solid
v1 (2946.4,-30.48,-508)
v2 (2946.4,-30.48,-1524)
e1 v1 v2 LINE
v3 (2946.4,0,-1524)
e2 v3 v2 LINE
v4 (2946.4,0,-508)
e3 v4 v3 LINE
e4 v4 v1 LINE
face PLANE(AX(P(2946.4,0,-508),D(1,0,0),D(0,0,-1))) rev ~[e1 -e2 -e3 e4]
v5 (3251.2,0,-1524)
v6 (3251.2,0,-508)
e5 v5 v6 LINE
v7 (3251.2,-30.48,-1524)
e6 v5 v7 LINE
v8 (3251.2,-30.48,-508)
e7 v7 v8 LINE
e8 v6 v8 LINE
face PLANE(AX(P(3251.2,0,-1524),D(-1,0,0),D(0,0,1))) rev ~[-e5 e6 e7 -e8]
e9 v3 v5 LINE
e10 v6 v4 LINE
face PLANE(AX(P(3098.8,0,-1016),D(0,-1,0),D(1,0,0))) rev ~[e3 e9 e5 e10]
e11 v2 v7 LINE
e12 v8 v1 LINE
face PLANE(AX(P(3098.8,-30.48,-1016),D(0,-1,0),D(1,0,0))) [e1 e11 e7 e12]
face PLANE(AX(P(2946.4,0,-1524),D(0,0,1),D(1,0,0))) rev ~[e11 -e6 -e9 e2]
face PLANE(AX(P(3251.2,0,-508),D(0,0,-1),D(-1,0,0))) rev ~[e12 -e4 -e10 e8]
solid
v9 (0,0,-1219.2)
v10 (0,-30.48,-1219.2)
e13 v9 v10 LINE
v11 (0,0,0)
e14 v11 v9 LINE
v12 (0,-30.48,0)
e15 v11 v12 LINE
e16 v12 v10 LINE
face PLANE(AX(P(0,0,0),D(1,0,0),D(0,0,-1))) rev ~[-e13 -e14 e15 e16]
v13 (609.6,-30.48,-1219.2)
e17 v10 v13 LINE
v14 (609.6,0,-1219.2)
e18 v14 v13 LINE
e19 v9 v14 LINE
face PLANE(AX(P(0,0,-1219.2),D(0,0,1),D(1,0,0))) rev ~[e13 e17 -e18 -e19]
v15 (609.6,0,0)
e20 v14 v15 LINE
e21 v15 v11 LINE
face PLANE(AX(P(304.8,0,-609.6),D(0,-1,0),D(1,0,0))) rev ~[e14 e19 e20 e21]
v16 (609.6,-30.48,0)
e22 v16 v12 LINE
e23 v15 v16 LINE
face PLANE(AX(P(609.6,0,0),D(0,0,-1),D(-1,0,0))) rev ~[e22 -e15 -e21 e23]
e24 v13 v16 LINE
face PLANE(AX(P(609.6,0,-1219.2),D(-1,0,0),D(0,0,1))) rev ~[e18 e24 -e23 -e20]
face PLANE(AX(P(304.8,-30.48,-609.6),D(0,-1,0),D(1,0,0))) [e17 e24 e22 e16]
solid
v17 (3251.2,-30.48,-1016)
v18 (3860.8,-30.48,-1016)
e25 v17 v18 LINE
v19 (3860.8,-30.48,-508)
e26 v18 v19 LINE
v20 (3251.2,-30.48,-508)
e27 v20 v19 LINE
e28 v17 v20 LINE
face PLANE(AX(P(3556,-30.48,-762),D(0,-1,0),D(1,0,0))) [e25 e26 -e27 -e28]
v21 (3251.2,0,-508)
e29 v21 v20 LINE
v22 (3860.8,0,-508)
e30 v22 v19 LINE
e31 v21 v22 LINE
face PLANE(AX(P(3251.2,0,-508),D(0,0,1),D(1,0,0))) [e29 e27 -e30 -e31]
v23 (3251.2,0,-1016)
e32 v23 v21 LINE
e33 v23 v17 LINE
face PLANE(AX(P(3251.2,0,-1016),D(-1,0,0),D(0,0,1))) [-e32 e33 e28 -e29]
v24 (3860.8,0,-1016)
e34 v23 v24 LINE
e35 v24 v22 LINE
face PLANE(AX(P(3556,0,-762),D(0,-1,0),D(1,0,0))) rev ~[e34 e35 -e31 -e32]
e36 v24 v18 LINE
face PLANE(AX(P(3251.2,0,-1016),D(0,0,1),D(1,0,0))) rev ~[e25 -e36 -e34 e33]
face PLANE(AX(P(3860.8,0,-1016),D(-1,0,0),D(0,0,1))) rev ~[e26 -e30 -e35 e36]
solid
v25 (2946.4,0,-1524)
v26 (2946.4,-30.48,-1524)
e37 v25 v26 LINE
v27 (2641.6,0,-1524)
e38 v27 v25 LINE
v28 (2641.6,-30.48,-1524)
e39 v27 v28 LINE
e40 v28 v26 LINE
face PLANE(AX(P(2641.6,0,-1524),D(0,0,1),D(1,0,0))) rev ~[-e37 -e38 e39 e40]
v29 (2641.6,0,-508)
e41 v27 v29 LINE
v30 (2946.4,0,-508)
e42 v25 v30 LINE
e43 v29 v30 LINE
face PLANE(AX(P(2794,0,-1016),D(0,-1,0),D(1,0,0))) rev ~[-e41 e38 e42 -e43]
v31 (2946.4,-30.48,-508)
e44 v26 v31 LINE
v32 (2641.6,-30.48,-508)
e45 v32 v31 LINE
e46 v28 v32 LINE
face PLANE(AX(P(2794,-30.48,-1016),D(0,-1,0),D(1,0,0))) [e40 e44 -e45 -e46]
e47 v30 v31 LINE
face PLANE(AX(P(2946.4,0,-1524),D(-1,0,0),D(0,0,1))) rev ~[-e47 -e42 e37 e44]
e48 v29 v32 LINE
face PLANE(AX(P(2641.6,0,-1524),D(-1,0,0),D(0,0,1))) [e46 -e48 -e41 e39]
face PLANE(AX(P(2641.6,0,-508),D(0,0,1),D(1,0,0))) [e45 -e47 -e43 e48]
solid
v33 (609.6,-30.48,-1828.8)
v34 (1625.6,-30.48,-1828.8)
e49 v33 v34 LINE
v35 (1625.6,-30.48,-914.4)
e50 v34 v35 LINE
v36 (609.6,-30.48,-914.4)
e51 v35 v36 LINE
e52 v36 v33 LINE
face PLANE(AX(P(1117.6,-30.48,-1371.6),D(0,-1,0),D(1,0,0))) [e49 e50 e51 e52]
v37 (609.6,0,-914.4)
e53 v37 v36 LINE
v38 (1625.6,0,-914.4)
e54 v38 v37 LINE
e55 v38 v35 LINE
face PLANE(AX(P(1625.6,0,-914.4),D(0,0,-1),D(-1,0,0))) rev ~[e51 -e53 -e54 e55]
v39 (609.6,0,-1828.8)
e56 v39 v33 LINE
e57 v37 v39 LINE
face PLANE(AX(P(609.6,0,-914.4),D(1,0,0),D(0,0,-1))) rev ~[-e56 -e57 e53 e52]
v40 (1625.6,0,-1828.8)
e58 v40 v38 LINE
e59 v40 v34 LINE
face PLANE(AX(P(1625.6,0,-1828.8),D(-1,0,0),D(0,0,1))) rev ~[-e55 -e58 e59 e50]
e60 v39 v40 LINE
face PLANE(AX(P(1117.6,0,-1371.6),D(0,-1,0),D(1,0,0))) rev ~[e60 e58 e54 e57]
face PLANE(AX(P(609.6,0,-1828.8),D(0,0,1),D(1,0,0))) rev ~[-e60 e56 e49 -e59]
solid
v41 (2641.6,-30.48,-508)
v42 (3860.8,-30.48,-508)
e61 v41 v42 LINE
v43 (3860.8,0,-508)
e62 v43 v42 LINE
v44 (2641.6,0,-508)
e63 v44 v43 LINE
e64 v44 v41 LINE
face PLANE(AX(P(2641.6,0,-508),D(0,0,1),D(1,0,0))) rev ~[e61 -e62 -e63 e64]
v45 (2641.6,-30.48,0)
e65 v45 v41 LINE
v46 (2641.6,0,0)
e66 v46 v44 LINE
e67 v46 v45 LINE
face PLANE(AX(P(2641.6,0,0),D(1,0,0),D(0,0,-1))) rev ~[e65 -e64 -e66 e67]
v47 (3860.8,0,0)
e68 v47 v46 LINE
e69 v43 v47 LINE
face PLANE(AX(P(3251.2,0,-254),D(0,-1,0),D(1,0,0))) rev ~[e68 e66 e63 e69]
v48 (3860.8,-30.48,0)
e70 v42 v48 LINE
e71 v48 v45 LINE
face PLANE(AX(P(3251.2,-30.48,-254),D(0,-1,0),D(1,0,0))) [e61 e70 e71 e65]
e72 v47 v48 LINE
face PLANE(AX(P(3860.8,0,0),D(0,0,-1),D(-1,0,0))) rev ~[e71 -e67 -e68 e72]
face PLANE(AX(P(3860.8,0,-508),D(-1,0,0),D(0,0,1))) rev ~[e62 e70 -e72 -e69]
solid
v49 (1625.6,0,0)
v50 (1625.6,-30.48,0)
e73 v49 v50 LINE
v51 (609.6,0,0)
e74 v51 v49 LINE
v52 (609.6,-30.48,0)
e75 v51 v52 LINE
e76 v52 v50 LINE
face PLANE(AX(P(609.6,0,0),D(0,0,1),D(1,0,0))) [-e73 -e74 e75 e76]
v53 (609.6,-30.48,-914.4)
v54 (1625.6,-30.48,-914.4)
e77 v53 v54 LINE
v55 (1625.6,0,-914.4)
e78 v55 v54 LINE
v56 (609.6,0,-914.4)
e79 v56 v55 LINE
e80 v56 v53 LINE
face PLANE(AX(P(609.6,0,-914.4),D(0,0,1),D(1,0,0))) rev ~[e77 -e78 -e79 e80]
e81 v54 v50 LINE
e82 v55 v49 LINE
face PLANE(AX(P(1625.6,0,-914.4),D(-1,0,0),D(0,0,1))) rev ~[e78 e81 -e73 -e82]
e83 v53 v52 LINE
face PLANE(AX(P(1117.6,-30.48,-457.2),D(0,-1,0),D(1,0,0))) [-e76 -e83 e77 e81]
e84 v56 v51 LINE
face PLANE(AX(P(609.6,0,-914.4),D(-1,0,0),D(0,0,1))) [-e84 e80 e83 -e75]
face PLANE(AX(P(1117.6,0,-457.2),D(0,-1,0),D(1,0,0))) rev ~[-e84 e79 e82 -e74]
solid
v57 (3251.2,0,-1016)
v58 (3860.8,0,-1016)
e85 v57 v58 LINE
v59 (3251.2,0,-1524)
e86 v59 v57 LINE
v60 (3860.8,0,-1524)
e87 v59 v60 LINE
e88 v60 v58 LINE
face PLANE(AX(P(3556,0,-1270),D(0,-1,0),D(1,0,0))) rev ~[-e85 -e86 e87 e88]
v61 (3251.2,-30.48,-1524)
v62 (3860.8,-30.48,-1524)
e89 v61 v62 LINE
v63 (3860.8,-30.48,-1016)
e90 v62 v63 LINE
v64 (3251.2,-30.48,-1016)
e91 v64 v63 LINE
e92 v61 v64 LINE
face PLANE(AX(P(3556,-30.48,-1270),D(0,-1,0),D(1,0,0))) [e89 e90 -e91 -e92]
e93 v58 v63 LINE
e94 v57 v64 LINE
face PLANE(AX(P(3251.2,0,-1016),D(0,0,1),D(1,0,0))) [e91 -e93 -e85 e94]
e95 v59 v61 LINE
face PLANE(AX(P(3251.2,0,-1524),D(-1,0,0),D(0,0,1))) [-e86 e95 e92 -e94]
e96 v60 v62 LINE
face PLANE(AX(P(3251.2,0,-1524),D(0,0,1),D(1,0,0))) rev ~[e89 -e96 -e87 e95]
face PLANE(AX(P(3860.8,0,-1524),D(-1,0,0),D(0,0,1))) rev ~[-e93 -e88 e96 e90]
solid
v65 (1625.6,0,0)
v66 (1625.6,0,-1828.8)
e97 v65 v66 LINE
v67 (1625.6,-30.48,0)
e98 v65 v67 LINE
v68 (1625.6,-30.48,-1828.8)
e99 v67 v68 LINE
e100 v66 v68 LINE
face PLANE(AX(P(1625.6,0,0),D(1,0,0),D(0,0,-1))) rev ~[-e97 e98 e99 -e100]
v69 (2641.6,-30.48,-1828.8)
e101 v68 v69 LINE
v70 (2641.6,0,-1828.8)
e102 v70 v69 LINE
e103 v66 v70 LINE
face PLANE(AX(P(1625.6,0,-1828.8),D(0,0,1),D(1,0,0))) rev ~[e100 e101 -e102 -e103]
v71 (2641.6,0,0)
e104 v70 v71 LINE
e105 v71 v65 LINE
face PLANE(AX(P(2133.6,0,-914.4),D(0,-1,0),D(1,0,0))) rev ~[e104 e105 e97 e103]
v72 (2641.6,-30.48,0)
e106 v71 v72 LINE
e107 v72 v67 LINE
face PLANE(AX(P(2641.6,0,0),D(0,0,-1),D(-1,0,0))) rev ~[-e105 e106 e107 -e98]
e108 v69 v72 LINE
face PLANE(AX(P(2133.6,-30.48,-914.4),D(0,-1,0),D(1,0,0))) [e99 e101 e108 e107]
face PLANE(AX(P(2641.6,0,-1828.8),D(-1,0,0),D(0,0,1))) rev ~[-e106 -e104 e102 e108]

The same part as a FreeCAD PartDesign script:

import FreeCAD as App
import Part
import Sketcher

V = App.Vector
Q = App.Units.Quantity


def add_polygon(sketch, points):
    """Adds a closed chain of lines whose ends are joined by coincident constraints."""
    first, n = sketch.GeometryCount, len(points)
    for a, b in zip(points, points[1:] + points[:1]):
        sketch.addGeometry(Part.LineSegment(App.Vector(*a, 0), App.Vector(*b, 0)), False)
    for i in range(n):
        sketch.addConstraint(Sketcher.Constraint("Coincident", first + i, 2, first + (i + 1) % n, 1))

doc = App.newDocument("Part")
params = doc.addObject("Spreadsheet::Sheet", "Params")
for row, (alias, value) in enumerate([
    ("sketch1_width", "24 in"),
    ("sketch1_width2", "40 in"),
    ("sketch1_width3", "12 in"),
    ("sketch1_height", "48 in"),
    ("sketch1_height2", "72 in"),
    ("pad1_length", "1.2 in"),
    ("sketch2_width", "40 in"),
    ("sketch2_width2", "48 in"),
    ("sketch2_width3", "24 in"),
    ("sketch2_height", "36 in"),
    ("sketch2_height2", "20 in"),
    ("pad2_length", "1.2 in"),
    ("sketch3_width", "40 in"),
    ("sketch3_width2", "12 in"),
    ("sketch3_width3", "24 in"),
    ("sketch3_height", "36 in"),
    ("sketch3_height2", "20 in"),
    ("pad3_length", "1.2 in"),
], start=1):
    params.set(f"A{row}", alias)
    params.set(f"B{row}", "=" + value)
    params.setAlias(f"B{row}", alias)

body = doc.addObject("PartDesign::Body", "Body")
body.AllowCompound = True

# Sketch on XZ plane
sketch1 = doc.addObject("Sketcher::SketchObject", "Sketch")
body.addObject(sketch1)
sketch1.AttachmentSupport = (doc.XZ_Plane, [""])
sketch1.MapMode = "FlatFace"
add_polygon(sketch1, [(610, 0), (0, 0), (0, -1219), (610, -1219)])  # lines 0-3
add_polygon(sketch1, [(2642, 0), (1626, 0), (1626, -1829), (2642, -1829)])  # lines 4-7
add_polygon(sketch1, [(3251, -508), (2946, -508), (2946, -1524), (3251, -1524)])  # lines 8-11
sketch1.addConstraint([
    Sketcher.Constraint("Horizontal", 0),
    Sketcher.Constraint("Vertical", 1),
    Sketcher.Constraint("Horizontal", 2),
    Sketcher.Constraint("Vertical", 3),
    Sketcher.Constraint("Horizontal", 4),
    Sketcher.Constraint("Vertical", 5),
    Sketcher.Constraint("Horizontal", 6),
    Sketcher.Constraint("Vertical", 7),
    Sketcher.Constraint("Horizontal", 8),
    Sketcher.Constraint("Vertical", 9),
    Sketcher.Constraint("Horizontal", 10),
    Sketcher.Constraint("Vertical", 11),
    Sketcher.Constraint("Coincident", 0, 2, -1, 1),
    Sketcher.Constraint("PointOnObject", 4, 2, -1),
    Sketcher.Constraint("Equal", 6, 9),
    Sketcher.Constraint("DistanceX", 0, 2, 0, 1, Q("24 in")),
    Sketcher.Constraint("DistanceX", 4, 2, 4, 1, Q("40 in")),
    Sketcher.Constraint("DistanceX", 8, 2, 8, 1, Q("12 in")),
    Sketcher.Constraint("DistanceY", 1, 2, 1, 1, Q("48 in")),
    Sketcher.Constraint("DistanceY", 5, 2, 5, 1, Q("72 in")),
    Sketcher.Constraint("DistanceX", -1, 1, 4, 2, Q("64 in")),
    Sketcher.Constraint("DistanceX", -1, 1, 8, 2, Q("116 in")),
    Sketcher.Constraint("DistanceY", 8, 2, -1, 1, Q("20 in")),
])
sketch1.setExpression("Constraints[27]", "Params.sketch1_width")
sketch1.setExpression("Constraints[28]", "Params.sketch1_width2")
sketch1.setExpression("Constraints[29]", "Params.sketch1_width3")
sketch1.setExpression("Constraints[30]", "Params.sketch1_height")
sketch1.setExpression("Constraints[31]", "Params.sketch1_height2")
pad1 = doc.addObject("PartDesign::Pad", "Pad")
body.addObject(pad1)
pad1.Profile = sketch1
pad1.setExpression("Length", "Params.pad1_length")
body2 = doc.addObject("PartDesign::Body", "Body001")
body2.AllowCompound = True

# Sketch on XZ plane
sketch2 = doc.addObject("Sketcher::SketchObject", "Sketch001")
body2.addObject(sketch2)
sketch2.AttachmentSupport = (doc.getObject("XZ_Plane001"), [""])
sketch2.MapMode = "FlatFace"
add_polygon(sketch2, [(610, 0), (610, -914), (1626, -914), (1626, 0)])  # lines 0-3
add_polygon(sketch2, [(3861, 0), (2642, 0), (2642, -508), (3861, -508)])  # lines 4-7
add_polygon(sketch2, [(3251, -1016), (3251, -1524), (3861, -1524), (3861, -1016)])  # lines 8-11
sketch2.addConstraint([
    Sketcher.Constraint("Vertical", 0),
    Sketcher.Constraint("Horizontal", 1),
    Sketcher.Constraint("Vertical", 2),
    Sketcher.Constraint("Horizontal", 3),
    Sketcher.Constraint("Horizontal", 4),
    Sketcher.Constraint("Vertical", 5),
    Sketcher.Constraint("Horizontal", 6),
    Sketcher.Constraint("Vertical", 7),
    Sketcher.Constraint("Vertical", 8),
    Sketcher.Constraint("Horizontal", 9),
    Sketcher.Constraint("Vertical", 10),
    Sketcher.Constraint("Horizontal", 11),
    Sketcher.Constraint("PointOnObject", 2, 2, -1),
    Sketcher.Constraint("PointOnObject", 4, 2, -1),
    Sketcher.Constraint("Vertical", 7, 2, 9, 2),
    Sketcher.Constraint("Equal", 7, 8),
    Sketcher.Constraint("DistanceX", 1, 1, 1, 2, Q("40 in")),
    Sketcher.Constraint("DistanceX", 4, 2, 4, 1, Q("48 in")),
    Sketcher.Constraint("DistanceX", 9, 1, 9, 2, Q("24 in")),
    Sketcher.Constraint("DistanceY", 0, 2, 0, 1, Q("36 in")),
    Sketcher.Constraint("DistanceY", 5, 2, 5, 1, Q("20 in")),
    Sketcher.Constraint("DistanceX", -1, 1, 0, 2, Q("24 in")),
    Sketcher.Constraint("DistanceX", -1, 1, 4, 2, Q("104 in")),
    Sketcher.Constraint("DistanceY", 8, 2, -1, 1, Q("60 in")),
])
sketch2.setExpression("Constraints[28]", "Params.sketch2_width")
sketch2.setExpression("Constraints[29]", "Params.sketch2_width2")
sketch2.setExpression("Constraints[30]", "Params.sketch2_width3")
sketch2.setExpression("Constraints[31]", "Params.sketch2_height")
sketch2.setExpression("Constraints[32]", "Params.sketch2_height2")
pad2 = doc.addObject("PartDesign::Pad", "Pad001")
body2.addObject(pad2)
pad2.Profile = sketch2
pad2.setExpression("Length", "Params.pad2_length")
body3 = doc.addObject("PartDesign::Body", "Body002")
body3.AllowCompound = True

# Sketch on XZ plane
sketch3 = doc.addObject("Sketcher::SketchObject", "Sketch002")
body3.addObject(sketch3)
sketch3.AttachmentSupport = (doc.getObject("XZ_Plane002"), [""])
sketch3.MapMode = "FlatFace"
add_polygon(sketch3, [(1626, -914), (610, -914), (610, -1829), (1626, -1829)])  # lines 0-3
add_polygon(sketch3, [(2642, -508), (2642, -1524), (2946, -1524), (2946, -508)])  # lines 4-7
add_polygon(sketch3, [(3251, -508), (3251, -1016), (3861, -1016), (3861, -508)])  # lines 8-11
sketch3.addConstraint([
    Sketcher.Constraint("Horizontal", 0),
    Sketcher.Constraint("Vertical", 1),
    Sketcher.Constraint("Horizontal", 2),
    Sketcher.Constraint("Vertical", 3),
    Sketcher.Constraint("Vertical", 4),
    Sketcher.Constraint("Horizontal", 5),
    Sketcher.Constraint("Vertical", 6),
    Sketcher.Constraint("Horizontal", 7),
    Sketcher.Constraint("Vertical", 8),
    Sketcher.Constraint("Horizontal", 9),
    Sketcher.Constraint("Vertical", 10),
    Sketcher.Constraint("Horizontal", 11),
    Sketcher.Constraint("Horizontal", 7, 2, 10, 2),
    Sketcher.Constraint("Equal", 2, 4),
    Sketcher.Constraint("DistanceX", 0, 2, 0, 1, Q("40 in")),
    Sketcher.Constraint("DistanceX", 5, 1, 5, 2, Q("12 in")),
    Sketcher.Constraint("DistanceX", 9, 1, 9, 2, Q("24 in")),
    Sketcher.Constraint("DistanceY", 1, 2, 1, 1, Q("36 in")),
    Sketcher.Constraint("DistanceY", 8, 2, 8, 1, Q("20 in")),
    Sketcher.Constraint("DistanceX", -1, 1, 0, 2, Q("24 in")),
    Sketcher.Constraint("DistanceY", 0, 2, -1, 1, Q("36 in")),
    Sketcher.Constraint("DistanceX", -1, 1, 4, 2, Q("104 in")),
    Sketcher.Constraint("DistanceY", 4, 2, -1, 1, Q("60 in")),
    Sketcher.Constraint("DistanceX", -1, 1, 8, 2, Q("128 in")),
])
sketch3.setExpression("Constraints[26]", "Params.sketch3_width")
sketch3.setExpression("Constraints[27]", "Params.sketch3_width2")
sketch3.setExpression("Constraints[28]", "Params.sketch3_width3")
sketch3.setExpression("Constraints[29]", "Params.sketch3_height")
sketch3.setExpression("Constraints[30]", "Params.sketch3_height2")
pad3 = doc.addObject("PartDesign::Pad", "Pad002")
body3.addObject(pad3)
pad3.Profile = sketch3
pad3.setExpression("Length", "Params.pad3_length")

doc.recompute()
